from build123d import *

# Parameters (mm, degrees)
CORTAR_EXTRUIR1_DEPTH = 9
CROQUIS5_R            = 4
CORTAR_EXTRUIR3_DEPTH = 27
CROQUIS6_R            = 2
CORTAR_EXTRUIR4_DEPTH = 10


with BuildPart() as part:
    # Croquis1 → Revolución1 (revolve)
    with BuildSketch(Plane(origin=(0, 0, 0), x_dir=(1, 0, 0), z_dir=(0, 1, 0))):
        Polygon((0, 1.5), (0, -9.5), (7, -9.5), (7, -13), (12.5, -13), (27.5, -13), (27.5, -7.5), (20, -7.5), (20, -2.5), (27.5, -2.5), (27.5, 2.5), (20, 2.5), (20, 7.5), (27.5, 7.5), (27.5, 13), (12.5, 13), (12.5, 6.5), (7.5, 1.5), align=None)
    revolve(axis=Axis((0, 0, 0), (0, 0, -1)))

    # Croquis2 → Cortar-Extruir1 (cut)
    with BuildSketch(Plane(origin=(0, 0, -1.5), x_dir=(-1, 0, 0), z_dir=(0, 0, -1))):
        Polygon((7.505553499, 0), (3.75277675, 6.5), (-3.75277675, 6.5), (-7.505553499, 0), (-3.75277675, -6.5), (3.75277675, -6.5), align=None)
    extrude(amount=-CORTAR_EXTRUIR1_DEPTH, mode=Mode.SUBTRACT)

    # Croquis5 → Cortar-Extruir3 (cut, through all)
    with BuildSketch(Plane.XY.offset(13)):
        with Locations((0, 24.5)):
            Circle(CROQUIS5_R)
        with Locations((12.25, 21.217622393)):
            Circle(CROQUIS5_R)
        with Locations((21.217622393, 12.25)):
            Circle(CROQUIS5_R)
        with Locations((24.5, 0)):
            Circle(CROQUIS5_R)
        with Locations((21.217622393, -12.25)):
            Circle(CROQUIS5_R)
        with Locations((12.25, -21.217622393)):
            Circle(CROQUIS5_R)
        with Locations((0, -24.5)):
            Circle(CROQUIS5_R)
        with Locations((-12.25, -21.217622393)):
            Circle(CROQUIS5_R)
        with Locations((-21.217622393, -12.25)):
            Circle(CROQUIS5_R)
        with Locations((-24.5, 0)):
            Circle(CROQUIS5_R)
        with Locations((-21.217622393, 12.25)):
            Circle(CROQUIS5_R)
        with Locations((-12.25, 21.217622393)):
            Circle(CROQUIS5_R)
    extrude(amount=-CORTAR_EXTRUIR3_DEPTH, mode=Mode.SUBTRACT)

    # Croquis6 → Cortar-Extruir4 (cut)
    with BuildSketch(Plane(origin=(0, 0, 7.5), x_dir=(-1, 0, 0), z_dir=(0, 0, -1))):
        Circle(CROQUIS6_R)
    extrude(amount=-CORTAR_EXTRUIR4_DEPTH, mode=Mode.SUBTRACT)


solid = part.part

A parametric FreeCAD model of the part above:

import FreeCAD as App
import Part
import Sketcher
Q = App.Units.Quantity

doc = App.newDocument("Part")
params = doc.addObject("Spreadsheet::Sheet", "Params")
for row, (alias, value) in enumerate([
    ("sketch1_width", "7 mm"),
    ("sketch1_width2", "15 mm"),
    ("sketch1_height", "11 mm"),
    ("sketch1_height2", "5 mm"),
    ("sketch1_width3", "20.5 mm"),
    ("revolution_angle", "360 deg"),
    ("pocket1_length", "9 mm"),
    ("sketch3_diameter", "8 mm"),
    ("sketch4_diameter", "4 mm"),
    ("pocket3_length", "10 mm"),
], start=1):
    params.set(f"A{row}", alias)
    params.set(f"B{row}", "=" + value)
    params.setAlias(f"B{row}", alias)

body = doc.addObject("PartDesign::Body", "Body")

sketch1 = body.newObject("Sketcher::SketchObject", "Sketch")
sketch1.AttachmentSupport = (doc.getObject("XZ_Plane"), [""])
sketch1.MapMode = "FlatFace"
sketch1.addGeometry([
    Part.LineSegment(App.Vector(0, -1.5, 0), App.Vector(0, 9.5, 0)),
    Part.LineSegment(App.Vector(0, 9.5, 0), App.Vector(7, 9.5, 0)),
    Part.LineSegment(App.Vector(7, 9.5, 0), App.Vector(7, 13, 0)),
    Part.LineSegment(App.Vector(7, 13, 0), App.Vector(27.5, 13, 0)),
    Part.LineSegment(App.Vector(27.5, 13, 0), App.Vector(27.5, 7.5, 0)),
    Part.LineSegment(App.Vector(27.5, 7.5, 0), App.Vector(20, 7.5, 0)),
    Part.LineSegment(App.Vector(20, 7.5, 0), App.Vector(20, 2.5, 0)),
    Part.LineSegment(App.Vector(20, 2.5, 0), App.Vector(27.5, 2.5, 0)),
    Part.LineSegment(App.Vector(27.5, 2.5, 0), App.Vector(27.5, -2.5, 0)),
    Part.LineSegment(App.Vector(27.5, -2.5, 0), App.Vector(20, -2.5, 0)),
    Part.LineSegment(App.Vector(20, -2.5, 0), App.Vector(20, -7.5, 0)),
    Part.LineSegment(App.Vector(20, -7.5, 0), App.Vector(27.5, -7.5, 0)),
    Part.LineSegment(App.Vector(27.5, -7.5, 0), App.Vector(27.5, -13, 0)),
    Part.LineSegment(App.Vector(27.5, -13, 0), App.Vector(12.5, -13, 0)),
    Part.LineSegment(App.Vector(12.5, -13, 0), App.Vector(12.5, -6.5, 0)),
    Part.LineSegment(App.Vector(12.5, -6.5, 0), App.Vector(7.5, -1.5, 0)),
    Part.LineSegment(App.Vector(7.5, -1.5, 0), App.Vector(0, -1.5, 0)),
], False)
sketch1.addConstraint([
    Sketcher.Constraint("Coincident", 0, 2, 1, 1),
    Sketcher.Constraint("Coincident", 1, 2, 2, 1),
    Sketcher.Constraint("Coincident", 2, 2, 3, 1),
    Sketcher.Constraint("Coincident", 3, 2, 4, 1),
    Sketcher.Constraint("Coincident", 4, 2, 5, 1),
    Sketcher.Constraint("Coincident", 5, 2, 6, 1),
    Sketcher.Constraint("Coincident", 6, 2, 7, 1),
    Sketcher.Constraint("Coincident", 7, 2, 8, 1),
    Sketcher.Constraint("Coincident", 8, 2, 9, 1),
    Sketcher.Constraint("Coincident", 9, 2, 10, 1),
    Sketcher.Constraint("Coincident", 10, 2, 11, 1),
    Sketcher.Constraint("Coincident", 11, 2, 12, 1),
    Sketcher.Constraint("Coincident", 12, 2, 13, 1),
    Sketcher.Constraint("Coincident", 13, 2, 14, 1),
    Sketcher.Constraint("Coincident", 14, 2, 15, 1),
    Sketcher.Constraint("Coincident", 15, 2, 16, 1),
    Sketcher.Constraint("Coincident", 16, 2, 0, 1),
    Sketcher.Constraint("Vertical", 0),
    Sketcher.Constraint("Horizontal", 1),
    Sketcher.Constraint("Vertical", 2),
    Sketcher.Constraint("Horizontal", 3),
    Sketcher.Constraint("Vertical", 4),
    Sketcher.Constraint("Horizontal", 5),
    Sketcher.Constraint("Vertical", 6),
    Sketcher.Constraint("Horizontal", 7),
    Sketcher.Constraint("Vertical", 8),
    Sketcher.Constraint("Horizontal", 9),
    Sketcher.Constraint("Vertical", 10),
    Sketcher.Constraint("Horizontal", 11),
    Sketcher.Constraint("Vertical", 12),
    Sketcher.Constraint("Horizontal", 13),
    Sketcher.Constraint("Vertical", 14),
    Sketcher.Constraint("Horizontal", 16),
    Sketcher.Constraint("Symmetric", 6, 2, 9, 2, -1),
    Sketcher.Constraint("Symmetric", 4, 2, 11, 2, -1),
    Sketcher.Constraint("PointOnObject", 0, 2, -2),
    Sketcher.Constraint("Vertical", 4, 2, 7, 2),
    Sketcher.Constraint("Equal", 11, 16),
    Sketcher.Constraint("Equal", 6, 8),
    Sketcher.Constraint("Equal", 4, 12),
    Sketcher.Constraint("DistanceX", 1, 1, 1, 2, 7.0),
    Sketcher.Constraint("DistanceX", 13, 2, 13, 1, 15.0),
    Sketcher.Constraint("DistanceY", 0, 1, 0, 2, 11.0),
    Sketcher.Constraint("DistanceY", 6, 2, 6, 1, 5.0),
    Sketcher.Constraint("Angle", 15, Q("135 deg")),
    Sketcher.Constraint("DistanceX", 3, 1, 3, 2, 20.5),
    Sketcher.Constraint("DistanceX", 5, 2, 5, 1, 7.5),
    Sketcher.Constraint("DistanceY", 2, 1, 2, 2, 3.5),
    Sketcher.Constraint("DistanceY", 4, 2, 4, 1, 5.5),
])
sketch1.setExpression("Constraints[40]", "Params.sketch1_width")
sketch1.setExpression("Constraints[41]", "Params.sketch1_width2")
sketch1.setExpression("Constraints[42]", "Params.sketch1_height")
sketch1.setExpression("Constraints[43]", "Params.sketch1_height2")
sketch1.setExpression("Constraints[45]", "Params.sketch1_width3")
revolution = body.newObject("PartDesign::Revolution", "Revolution")
revolution.Profile = sketch1
revolution.ReferenceAxis = (sketch1, ["V_Axis"])
revolution.setExpression("Angle", "Params.revolution_angle")

sketch2 = body.newObject("Sketcher::SketchObject", "Sketch001")
sketch2.AttachmentSupport = (doc.getObject("XY_Plane"), [""])
sketch2.MapMode = "FlatFace"
sketch2.AttachmentOffset = App.Placement(App.Vector(0, 0, -1.5), App.Rotation())
sketch2.addGeometry([
    Part.LineSegment(App.Vector(-8, 0, 0), App.Vector(-4, 6, 0)),
    Part.LineSegment(App.Vector(-4, 6, 0), App.Vector(4, 6, 0)),
    Part.LineSegment(App.Vector(4, 6, 0), App.Vector(8, 0, 0)),
    Part.LineSegment(App.Vector(8, 0, 0), App.Vector(4, -6, 0)),
    Part.LineSegment(App.Vector(4, -6, 0), App.Vector(-4, -6, 0)),
    Part.LineSegment(App.Vector(-4, -6, 0), App.Vector(-8, 0, 0)),
], False)
sketch2.addConstraint([
    Sketcher.Constraint("Coincident", 0, 2, 1, 1),
    Sketcher.Constraint("Coincident", 1, 2, 2, 1),
    Sketcher.Constraint("Coincident", 2, 2, 3, 1),
    Sketcher.Constraint("Coincident", 3, 2, 4, 1),
    Sketcher.Constraint("Coincident", 4, 2, 5, 1),
    Sketcher.Constraint("Coincident", 5, 2, 0, 1),
    Sketcher.Constraint("Horizontal", 1),
    Sketcher.Constraint("Horizontal", 4),
    Sketcher.Constraint("Symmetric", 0, 2, 3, 2, -1, 1),
    Sketcher.Constraint("Symmetric", 2, 2, 5, 2, -1, 1),
    Sketcher.Constraint("PointOnObject", 2, 2, -1),
    Sketcher.Constraint("Parallel", 2, 5),
    Sketcher.Constraint("Vertical", 1, 2, 3, 2),
    Sketcher.Constraint("Angle", 0, Q("60 deg")),
    Sketcher.Constraint("DistanceY", 3, 2, 1, 2, 13.0),
    Sketcher.Constraint("DistanceX", 1, 1, 1, 2, 7.505554),
])
pocket1 = body.newObject("PartDesign::Pocket", "Pocket")
pocket1.Profile = sketch2
pocket1.setExpression("Length", "Params.pocket1_length")
pocket1.Reversed = True

sketch3 = body.newObject("Sketcher::SketchObject", "Sketch002")
sketch3.AttachmentSupport = (doc.getObject("XY_Plane"), [""])
sketch3.MapMode = "FlatFace"
sketch3.AttachmentOffset = App.Placement(App.Vector(0, 0, 13), App.Rotation())
sketch3.addGeometry([
    Part.Circle(App.Vector(0, 24.5, 0), App.Vector(0, 0, 1), 4),
    Part.Circle(App.Vector(12.2, 21.2, 0), App.Vector(0, 0, 1), 4),
    Part.Circle(App.Vector(21.2, 12.2, 0), App.Vector(0, 0, 1), 4),
    Part.Circle(App.Vector(24.5, 0, 0), App.Vector(0, 0, 1), 4),
    Part.Circle(App.Vector(21.2, -12.2, 0), App.Vector(0, 0, 1), 4),
    Part.Circle(App.Vector(12.2, -21.2, 0), App.Vector(0, 0, 1), 4),
    Part.Circle(App.Vector(0, -24.5, 0), App.Vector(0, 0, 1), 4),
    Part.Circle(App.Vector(-12.2, -21.2, 0), App.Vector(0, 0, 1), 4),
    Part.Circle(App.Vector(-21.2, -12.2, 0), App.Vector(0, 0, 1), 4),
    Part.Circle(App.Vector(-24.5, 0, 0), App.Vector(0, 0, 1), 4),
    Part.Circle(App.Vector(-21.2, 12.2, 0), App.Vector(0, 0, 1), 4),
    Part.Circle(App.Vector(-12.2, 21.2, 0), App.Vector(0, 0, 1), 4),
], False)
sketch3.addConstraint([
    Sketcher.Constraint("Equal", 0, 1),
    Sketcher.Constraint("Equal", 1, 2),
    Sketcher.Constraint("Equal", 2, 3),
    Sketcher.Constraint("Equal", 3, 4),
    Sketcher.Constraint("Equal", 4, 5),
    Sketcher.Constraint("Equal", 5, 6),
    Sketcher.Constraint("Equal", 6, 7),
    Sketcher.Constraint("Equal", 7, 8),
    Sketcher.Constraint("Equal", 8, 9),
    Sketcher.Constraint("Equal", 9, 10),
    Sketcher.Constraint("Equal", 10, 11),
    Sketcher.Constraint("Symmetric", 0, 3, 6, 3, -1, 1),
    Sketcher.Constraint("Symmetric", 1, 3, 7, 3, -1, 1),
    Sketcher.Constraint("Symmetric", 2, 3, 8, 3, -1, 1),
    Sketcher.Constraint("Symmetric", 3, 3, 9, 3, -1, 1),
    Sketcher.Constraint("Symmetric", 4, 3, 10, 3, -1, 1),
    Sketcher.Constraint("Symmetric", 5, 3, 11, 3, -1, 1),
    Sketcher.Constraint("Symmetric", 5, 3, 7, 3, -2),
    Sketcher.Constraint("Symmetric", 4, 3, 8, 3, -2),
    Sketcher.Constraint("PointOnObject", 0, 3, -2),
    Sketcher.Constraint("PointOnObject", 3, 3, -1),
    Sketcher.Constraint("Diameter", 0, 8.0),
    Sketcher.Constraint("DistanceY", -1, 1, 0, 3, 24.5),
    Sketcher.Constraint("DistanceX", -1, 1, 3, 3, 24.5),
    Sketcher.Constraint("DistanceY", 4, 3, 2, 3, 24.5),
    Sketcher.Constraint("DistanceX", 7, 3, 5, 3, 24.5),
    Sketcher.Constraint("DistanceY", -1, 1, 1, 3, 21.217622),
    Sketcher.Constraint("DistanceX", -1, 1, 2, 3, 21.217622),
])
sketch3.setExpression("Constraints[21]", "Params.sketch3_diameter")
pocket2 = body.newObject("PartDesign::Pocket", "Pocket001")
pocket2.Profile = sketch3
pocket2.Type = "ThroughAll"

sketch4 = body.newObject("Sketcher::SketchObject", "Sketch003")
sketch4.AttachmentSupport = (doc.getObject("XY_Plane"), [""])
sketch4.MapMode = "FlatFace"
sketch4.AttachmentOffset = App.Placement(App.Vector(0, 0, 7.5), App.Rotation())
sketch4.addGeometry(Part.Circle(App.Vector(0, 0, 0), App.Vector(0, 0, 1), 2), False)
sketch4.addConstraint([
    Sketcher.Constraint("Coincident", 0, 3, -1, 1),
    Sketcher.Constraint("Diameter", 0, 4.0),
])
sketch4.setExpression("Constraints[1]", "Params.sketch4_diameter")
pocket3 = body.newObject("PartDesign::Pocket", "Pocket002")
pocket3.Profile = sketch4
pocket3.setExpression("Length", "Params.pocket3_length")
pocket3.Reversed = True

doc.recompute()
